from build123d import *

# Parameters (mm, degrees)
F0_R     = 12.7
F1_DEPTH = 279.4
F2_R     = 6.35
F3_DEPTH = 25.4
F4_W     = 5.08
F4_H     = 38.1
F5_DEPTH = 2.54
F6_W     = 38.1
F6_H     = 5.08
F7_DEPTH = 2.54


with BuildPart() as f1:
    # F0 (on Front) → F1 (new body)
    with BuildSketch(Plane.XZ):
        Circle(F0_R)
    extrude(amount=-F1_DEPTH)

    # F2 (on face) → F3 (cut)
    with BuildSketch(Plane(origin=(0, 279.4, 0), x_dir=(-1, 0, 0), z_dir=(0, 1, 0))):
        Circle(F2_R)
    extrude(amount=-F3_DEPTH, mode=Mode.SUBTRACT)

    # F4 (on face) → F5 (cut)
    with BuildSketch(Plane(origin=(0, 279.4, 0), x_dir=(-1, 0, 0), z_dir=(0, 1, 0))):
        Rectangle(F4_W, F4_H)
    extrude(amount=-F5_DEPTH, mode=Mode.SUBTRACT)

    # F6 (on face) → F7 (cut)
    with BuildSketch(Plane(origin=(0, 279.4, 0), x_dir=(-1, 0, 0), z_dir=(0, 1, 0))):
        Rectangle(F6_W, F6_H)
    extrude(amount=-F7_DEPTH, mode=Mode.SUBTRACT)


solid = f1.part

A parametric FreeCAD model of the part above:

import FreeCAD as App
import Part
import Sketcher
Q = App.Units.Quantity


def add_polygon(sketch, points):
    """Adds a closed chain of lines whose ends are joined by coincident constraints."""
    first, n = sketch.GeometryCount, len(points)
    for a, b in zip(points, points[1:] + points[:1]):
        sketch.addGeometry(Part.LineSegment(App.Vector(*a, 0), App.Vector(*b, 0)), False)
    for i in range(n):
        sketch.addConstraint(Sketcher.Constraint("Coincident", first + i, 2, first + (i + 1) % n, 1))

doc = App.newDocument("Part")
body = doc.addObject("PartDesign::Body", "Body")

# Sketch on XZ plane
sketch1 = body.newObject("Sketcher::SketchObject", "Sketch")
sketch1.AttachmentSupport = (doc.getObject("XZ_Plane"), [""])
sketch1.MapMode = "FlatFace"
sketch1.addGeometry(Part.Circle(App.Vector(0, 0, 0), App.Vector(0, 0, 1), 13), False)
sketch1.addConstraint([
    Sketcher.Constraint("Coincident", 0, 3, -1, 1),
    Sketcher.Constraint("Diameter", 0, Q("1 in")),
])
pad1 = body.newObject("PartDesign::Pad", "Pad")
pad1.Profile = sketch1
pad1.Length = Q("11 in")
pad1.Reversed = True

# Sketch on XZ plane
sketch2 = body.newObject("Sketcher::SketchObject", "Sketch001")
sketch2.AttachmentSupport = (doc.getObject("XZ_Plane"), [""])
sketch2.MapMode = "FlatFace"
sketch2.AttachmentOffset = App.Placement(App.Vector(0, 0, -11 * 25.4), App.Rotation())
sketch2.addGeometry(Part.Circle(App.Vector(0, 0, 0), App.Vector(0, 0, 1), 6), False)
sketch2.addConstraint([
    Sketcher.Constraint("Coincident", 0, 3, -1, 1),
    Sketcher.Constraint("Diameter", 0, Q("0.5 in")),
])
pocket1 = body.newObject("PartDesign::Pocket", "Pocket")
pocket1.Profile = sketch2
pocket1.Length = Q("1 in")
pocket1.Reversed = True

# Sketch on XZ plane
sketch3 = body.newObject("Sketcher::SketchObject", "Sketch002")
sketch3.AttachmentSupport = (doc.getObject("XZ_Plane"), [""])
sketch3.MapMode = "FlatFace"
sketch3.AttachmentOffset = App.Placement(App.Vector(0, 0, -11 * 25.4), App.Rotation())
add_polygon(sketch3, [(3, 19), (3, -19), (-3, -19), (-3, 19)])  # lines 0-3
sketch3.addConstraint([
    Sketcher.Constraint("Vertical", 0),
    Sketcher.Constraint("Horizontal", 1),
    Sketcher.Constraint("Vertical", 2),
    Sketcher.Constraint("Horizontal", 3),
    Sketcher.Constraint("Symmetric", 0, 2, 2, 2, -1, 1),
    Sketcher.Constraint("DistanceX", 1, 2, 1, 1, Q("0.2 in")),
    Sketcher.Constraint("DistanceY", 0, 2, 0, 1, Q("1.5 in")),
])
pocket2 = body.newObject("PartDesign::Pocket", "Pocket001")
pocket2.Profile = sketch3
pocket2.Length = Q("0.1 in")
pocket2.Reversed = True

# Sketch on XZ plane
sketch4 = body.newObject("Sketcher::SketchObject", "Sketch003")
sketch4.AttachmentSupport = (doc.getObject("XZ_Plane"), [""])
sketch4.MapMode = "FlatFace"
sketch4.AttachmentOffset = App.Placement(App.Vector(0, 0, -11 * 25.4), App.Rotation())
add_polygon(sketch4, [(19, 3), (19, -3), (-19, -3), (-19, 3)])  # lines 0-3
sketch4.addConstraint([
    Sketcher.Constraint("Vertical", 0),
    Sketcher.Constraint("Horizontal", 1),
    Sketcher.Constraint("Vertical", 2),
    Sketcher.Constraint("Horizontal", 3),
    Sketcher.Constraint("Symmetric", 0, 2, 2, 2, -1, 1),
    Sketcher.Constraint("DistanceX", 1, 2, 1, 1, Q("1.5 in")),
    Sketcher.Constraint("DistanceY", 0, 2, 0, 1, Q("0.2 in")),
])
pocket3 = body.newObject("PartDesign::Pocket", "Pocket002")
pocket3.Profile = sketch4
pocket3.Length = Q("0.1 in")
pocket3.Reversed = True

doc.recompute()
